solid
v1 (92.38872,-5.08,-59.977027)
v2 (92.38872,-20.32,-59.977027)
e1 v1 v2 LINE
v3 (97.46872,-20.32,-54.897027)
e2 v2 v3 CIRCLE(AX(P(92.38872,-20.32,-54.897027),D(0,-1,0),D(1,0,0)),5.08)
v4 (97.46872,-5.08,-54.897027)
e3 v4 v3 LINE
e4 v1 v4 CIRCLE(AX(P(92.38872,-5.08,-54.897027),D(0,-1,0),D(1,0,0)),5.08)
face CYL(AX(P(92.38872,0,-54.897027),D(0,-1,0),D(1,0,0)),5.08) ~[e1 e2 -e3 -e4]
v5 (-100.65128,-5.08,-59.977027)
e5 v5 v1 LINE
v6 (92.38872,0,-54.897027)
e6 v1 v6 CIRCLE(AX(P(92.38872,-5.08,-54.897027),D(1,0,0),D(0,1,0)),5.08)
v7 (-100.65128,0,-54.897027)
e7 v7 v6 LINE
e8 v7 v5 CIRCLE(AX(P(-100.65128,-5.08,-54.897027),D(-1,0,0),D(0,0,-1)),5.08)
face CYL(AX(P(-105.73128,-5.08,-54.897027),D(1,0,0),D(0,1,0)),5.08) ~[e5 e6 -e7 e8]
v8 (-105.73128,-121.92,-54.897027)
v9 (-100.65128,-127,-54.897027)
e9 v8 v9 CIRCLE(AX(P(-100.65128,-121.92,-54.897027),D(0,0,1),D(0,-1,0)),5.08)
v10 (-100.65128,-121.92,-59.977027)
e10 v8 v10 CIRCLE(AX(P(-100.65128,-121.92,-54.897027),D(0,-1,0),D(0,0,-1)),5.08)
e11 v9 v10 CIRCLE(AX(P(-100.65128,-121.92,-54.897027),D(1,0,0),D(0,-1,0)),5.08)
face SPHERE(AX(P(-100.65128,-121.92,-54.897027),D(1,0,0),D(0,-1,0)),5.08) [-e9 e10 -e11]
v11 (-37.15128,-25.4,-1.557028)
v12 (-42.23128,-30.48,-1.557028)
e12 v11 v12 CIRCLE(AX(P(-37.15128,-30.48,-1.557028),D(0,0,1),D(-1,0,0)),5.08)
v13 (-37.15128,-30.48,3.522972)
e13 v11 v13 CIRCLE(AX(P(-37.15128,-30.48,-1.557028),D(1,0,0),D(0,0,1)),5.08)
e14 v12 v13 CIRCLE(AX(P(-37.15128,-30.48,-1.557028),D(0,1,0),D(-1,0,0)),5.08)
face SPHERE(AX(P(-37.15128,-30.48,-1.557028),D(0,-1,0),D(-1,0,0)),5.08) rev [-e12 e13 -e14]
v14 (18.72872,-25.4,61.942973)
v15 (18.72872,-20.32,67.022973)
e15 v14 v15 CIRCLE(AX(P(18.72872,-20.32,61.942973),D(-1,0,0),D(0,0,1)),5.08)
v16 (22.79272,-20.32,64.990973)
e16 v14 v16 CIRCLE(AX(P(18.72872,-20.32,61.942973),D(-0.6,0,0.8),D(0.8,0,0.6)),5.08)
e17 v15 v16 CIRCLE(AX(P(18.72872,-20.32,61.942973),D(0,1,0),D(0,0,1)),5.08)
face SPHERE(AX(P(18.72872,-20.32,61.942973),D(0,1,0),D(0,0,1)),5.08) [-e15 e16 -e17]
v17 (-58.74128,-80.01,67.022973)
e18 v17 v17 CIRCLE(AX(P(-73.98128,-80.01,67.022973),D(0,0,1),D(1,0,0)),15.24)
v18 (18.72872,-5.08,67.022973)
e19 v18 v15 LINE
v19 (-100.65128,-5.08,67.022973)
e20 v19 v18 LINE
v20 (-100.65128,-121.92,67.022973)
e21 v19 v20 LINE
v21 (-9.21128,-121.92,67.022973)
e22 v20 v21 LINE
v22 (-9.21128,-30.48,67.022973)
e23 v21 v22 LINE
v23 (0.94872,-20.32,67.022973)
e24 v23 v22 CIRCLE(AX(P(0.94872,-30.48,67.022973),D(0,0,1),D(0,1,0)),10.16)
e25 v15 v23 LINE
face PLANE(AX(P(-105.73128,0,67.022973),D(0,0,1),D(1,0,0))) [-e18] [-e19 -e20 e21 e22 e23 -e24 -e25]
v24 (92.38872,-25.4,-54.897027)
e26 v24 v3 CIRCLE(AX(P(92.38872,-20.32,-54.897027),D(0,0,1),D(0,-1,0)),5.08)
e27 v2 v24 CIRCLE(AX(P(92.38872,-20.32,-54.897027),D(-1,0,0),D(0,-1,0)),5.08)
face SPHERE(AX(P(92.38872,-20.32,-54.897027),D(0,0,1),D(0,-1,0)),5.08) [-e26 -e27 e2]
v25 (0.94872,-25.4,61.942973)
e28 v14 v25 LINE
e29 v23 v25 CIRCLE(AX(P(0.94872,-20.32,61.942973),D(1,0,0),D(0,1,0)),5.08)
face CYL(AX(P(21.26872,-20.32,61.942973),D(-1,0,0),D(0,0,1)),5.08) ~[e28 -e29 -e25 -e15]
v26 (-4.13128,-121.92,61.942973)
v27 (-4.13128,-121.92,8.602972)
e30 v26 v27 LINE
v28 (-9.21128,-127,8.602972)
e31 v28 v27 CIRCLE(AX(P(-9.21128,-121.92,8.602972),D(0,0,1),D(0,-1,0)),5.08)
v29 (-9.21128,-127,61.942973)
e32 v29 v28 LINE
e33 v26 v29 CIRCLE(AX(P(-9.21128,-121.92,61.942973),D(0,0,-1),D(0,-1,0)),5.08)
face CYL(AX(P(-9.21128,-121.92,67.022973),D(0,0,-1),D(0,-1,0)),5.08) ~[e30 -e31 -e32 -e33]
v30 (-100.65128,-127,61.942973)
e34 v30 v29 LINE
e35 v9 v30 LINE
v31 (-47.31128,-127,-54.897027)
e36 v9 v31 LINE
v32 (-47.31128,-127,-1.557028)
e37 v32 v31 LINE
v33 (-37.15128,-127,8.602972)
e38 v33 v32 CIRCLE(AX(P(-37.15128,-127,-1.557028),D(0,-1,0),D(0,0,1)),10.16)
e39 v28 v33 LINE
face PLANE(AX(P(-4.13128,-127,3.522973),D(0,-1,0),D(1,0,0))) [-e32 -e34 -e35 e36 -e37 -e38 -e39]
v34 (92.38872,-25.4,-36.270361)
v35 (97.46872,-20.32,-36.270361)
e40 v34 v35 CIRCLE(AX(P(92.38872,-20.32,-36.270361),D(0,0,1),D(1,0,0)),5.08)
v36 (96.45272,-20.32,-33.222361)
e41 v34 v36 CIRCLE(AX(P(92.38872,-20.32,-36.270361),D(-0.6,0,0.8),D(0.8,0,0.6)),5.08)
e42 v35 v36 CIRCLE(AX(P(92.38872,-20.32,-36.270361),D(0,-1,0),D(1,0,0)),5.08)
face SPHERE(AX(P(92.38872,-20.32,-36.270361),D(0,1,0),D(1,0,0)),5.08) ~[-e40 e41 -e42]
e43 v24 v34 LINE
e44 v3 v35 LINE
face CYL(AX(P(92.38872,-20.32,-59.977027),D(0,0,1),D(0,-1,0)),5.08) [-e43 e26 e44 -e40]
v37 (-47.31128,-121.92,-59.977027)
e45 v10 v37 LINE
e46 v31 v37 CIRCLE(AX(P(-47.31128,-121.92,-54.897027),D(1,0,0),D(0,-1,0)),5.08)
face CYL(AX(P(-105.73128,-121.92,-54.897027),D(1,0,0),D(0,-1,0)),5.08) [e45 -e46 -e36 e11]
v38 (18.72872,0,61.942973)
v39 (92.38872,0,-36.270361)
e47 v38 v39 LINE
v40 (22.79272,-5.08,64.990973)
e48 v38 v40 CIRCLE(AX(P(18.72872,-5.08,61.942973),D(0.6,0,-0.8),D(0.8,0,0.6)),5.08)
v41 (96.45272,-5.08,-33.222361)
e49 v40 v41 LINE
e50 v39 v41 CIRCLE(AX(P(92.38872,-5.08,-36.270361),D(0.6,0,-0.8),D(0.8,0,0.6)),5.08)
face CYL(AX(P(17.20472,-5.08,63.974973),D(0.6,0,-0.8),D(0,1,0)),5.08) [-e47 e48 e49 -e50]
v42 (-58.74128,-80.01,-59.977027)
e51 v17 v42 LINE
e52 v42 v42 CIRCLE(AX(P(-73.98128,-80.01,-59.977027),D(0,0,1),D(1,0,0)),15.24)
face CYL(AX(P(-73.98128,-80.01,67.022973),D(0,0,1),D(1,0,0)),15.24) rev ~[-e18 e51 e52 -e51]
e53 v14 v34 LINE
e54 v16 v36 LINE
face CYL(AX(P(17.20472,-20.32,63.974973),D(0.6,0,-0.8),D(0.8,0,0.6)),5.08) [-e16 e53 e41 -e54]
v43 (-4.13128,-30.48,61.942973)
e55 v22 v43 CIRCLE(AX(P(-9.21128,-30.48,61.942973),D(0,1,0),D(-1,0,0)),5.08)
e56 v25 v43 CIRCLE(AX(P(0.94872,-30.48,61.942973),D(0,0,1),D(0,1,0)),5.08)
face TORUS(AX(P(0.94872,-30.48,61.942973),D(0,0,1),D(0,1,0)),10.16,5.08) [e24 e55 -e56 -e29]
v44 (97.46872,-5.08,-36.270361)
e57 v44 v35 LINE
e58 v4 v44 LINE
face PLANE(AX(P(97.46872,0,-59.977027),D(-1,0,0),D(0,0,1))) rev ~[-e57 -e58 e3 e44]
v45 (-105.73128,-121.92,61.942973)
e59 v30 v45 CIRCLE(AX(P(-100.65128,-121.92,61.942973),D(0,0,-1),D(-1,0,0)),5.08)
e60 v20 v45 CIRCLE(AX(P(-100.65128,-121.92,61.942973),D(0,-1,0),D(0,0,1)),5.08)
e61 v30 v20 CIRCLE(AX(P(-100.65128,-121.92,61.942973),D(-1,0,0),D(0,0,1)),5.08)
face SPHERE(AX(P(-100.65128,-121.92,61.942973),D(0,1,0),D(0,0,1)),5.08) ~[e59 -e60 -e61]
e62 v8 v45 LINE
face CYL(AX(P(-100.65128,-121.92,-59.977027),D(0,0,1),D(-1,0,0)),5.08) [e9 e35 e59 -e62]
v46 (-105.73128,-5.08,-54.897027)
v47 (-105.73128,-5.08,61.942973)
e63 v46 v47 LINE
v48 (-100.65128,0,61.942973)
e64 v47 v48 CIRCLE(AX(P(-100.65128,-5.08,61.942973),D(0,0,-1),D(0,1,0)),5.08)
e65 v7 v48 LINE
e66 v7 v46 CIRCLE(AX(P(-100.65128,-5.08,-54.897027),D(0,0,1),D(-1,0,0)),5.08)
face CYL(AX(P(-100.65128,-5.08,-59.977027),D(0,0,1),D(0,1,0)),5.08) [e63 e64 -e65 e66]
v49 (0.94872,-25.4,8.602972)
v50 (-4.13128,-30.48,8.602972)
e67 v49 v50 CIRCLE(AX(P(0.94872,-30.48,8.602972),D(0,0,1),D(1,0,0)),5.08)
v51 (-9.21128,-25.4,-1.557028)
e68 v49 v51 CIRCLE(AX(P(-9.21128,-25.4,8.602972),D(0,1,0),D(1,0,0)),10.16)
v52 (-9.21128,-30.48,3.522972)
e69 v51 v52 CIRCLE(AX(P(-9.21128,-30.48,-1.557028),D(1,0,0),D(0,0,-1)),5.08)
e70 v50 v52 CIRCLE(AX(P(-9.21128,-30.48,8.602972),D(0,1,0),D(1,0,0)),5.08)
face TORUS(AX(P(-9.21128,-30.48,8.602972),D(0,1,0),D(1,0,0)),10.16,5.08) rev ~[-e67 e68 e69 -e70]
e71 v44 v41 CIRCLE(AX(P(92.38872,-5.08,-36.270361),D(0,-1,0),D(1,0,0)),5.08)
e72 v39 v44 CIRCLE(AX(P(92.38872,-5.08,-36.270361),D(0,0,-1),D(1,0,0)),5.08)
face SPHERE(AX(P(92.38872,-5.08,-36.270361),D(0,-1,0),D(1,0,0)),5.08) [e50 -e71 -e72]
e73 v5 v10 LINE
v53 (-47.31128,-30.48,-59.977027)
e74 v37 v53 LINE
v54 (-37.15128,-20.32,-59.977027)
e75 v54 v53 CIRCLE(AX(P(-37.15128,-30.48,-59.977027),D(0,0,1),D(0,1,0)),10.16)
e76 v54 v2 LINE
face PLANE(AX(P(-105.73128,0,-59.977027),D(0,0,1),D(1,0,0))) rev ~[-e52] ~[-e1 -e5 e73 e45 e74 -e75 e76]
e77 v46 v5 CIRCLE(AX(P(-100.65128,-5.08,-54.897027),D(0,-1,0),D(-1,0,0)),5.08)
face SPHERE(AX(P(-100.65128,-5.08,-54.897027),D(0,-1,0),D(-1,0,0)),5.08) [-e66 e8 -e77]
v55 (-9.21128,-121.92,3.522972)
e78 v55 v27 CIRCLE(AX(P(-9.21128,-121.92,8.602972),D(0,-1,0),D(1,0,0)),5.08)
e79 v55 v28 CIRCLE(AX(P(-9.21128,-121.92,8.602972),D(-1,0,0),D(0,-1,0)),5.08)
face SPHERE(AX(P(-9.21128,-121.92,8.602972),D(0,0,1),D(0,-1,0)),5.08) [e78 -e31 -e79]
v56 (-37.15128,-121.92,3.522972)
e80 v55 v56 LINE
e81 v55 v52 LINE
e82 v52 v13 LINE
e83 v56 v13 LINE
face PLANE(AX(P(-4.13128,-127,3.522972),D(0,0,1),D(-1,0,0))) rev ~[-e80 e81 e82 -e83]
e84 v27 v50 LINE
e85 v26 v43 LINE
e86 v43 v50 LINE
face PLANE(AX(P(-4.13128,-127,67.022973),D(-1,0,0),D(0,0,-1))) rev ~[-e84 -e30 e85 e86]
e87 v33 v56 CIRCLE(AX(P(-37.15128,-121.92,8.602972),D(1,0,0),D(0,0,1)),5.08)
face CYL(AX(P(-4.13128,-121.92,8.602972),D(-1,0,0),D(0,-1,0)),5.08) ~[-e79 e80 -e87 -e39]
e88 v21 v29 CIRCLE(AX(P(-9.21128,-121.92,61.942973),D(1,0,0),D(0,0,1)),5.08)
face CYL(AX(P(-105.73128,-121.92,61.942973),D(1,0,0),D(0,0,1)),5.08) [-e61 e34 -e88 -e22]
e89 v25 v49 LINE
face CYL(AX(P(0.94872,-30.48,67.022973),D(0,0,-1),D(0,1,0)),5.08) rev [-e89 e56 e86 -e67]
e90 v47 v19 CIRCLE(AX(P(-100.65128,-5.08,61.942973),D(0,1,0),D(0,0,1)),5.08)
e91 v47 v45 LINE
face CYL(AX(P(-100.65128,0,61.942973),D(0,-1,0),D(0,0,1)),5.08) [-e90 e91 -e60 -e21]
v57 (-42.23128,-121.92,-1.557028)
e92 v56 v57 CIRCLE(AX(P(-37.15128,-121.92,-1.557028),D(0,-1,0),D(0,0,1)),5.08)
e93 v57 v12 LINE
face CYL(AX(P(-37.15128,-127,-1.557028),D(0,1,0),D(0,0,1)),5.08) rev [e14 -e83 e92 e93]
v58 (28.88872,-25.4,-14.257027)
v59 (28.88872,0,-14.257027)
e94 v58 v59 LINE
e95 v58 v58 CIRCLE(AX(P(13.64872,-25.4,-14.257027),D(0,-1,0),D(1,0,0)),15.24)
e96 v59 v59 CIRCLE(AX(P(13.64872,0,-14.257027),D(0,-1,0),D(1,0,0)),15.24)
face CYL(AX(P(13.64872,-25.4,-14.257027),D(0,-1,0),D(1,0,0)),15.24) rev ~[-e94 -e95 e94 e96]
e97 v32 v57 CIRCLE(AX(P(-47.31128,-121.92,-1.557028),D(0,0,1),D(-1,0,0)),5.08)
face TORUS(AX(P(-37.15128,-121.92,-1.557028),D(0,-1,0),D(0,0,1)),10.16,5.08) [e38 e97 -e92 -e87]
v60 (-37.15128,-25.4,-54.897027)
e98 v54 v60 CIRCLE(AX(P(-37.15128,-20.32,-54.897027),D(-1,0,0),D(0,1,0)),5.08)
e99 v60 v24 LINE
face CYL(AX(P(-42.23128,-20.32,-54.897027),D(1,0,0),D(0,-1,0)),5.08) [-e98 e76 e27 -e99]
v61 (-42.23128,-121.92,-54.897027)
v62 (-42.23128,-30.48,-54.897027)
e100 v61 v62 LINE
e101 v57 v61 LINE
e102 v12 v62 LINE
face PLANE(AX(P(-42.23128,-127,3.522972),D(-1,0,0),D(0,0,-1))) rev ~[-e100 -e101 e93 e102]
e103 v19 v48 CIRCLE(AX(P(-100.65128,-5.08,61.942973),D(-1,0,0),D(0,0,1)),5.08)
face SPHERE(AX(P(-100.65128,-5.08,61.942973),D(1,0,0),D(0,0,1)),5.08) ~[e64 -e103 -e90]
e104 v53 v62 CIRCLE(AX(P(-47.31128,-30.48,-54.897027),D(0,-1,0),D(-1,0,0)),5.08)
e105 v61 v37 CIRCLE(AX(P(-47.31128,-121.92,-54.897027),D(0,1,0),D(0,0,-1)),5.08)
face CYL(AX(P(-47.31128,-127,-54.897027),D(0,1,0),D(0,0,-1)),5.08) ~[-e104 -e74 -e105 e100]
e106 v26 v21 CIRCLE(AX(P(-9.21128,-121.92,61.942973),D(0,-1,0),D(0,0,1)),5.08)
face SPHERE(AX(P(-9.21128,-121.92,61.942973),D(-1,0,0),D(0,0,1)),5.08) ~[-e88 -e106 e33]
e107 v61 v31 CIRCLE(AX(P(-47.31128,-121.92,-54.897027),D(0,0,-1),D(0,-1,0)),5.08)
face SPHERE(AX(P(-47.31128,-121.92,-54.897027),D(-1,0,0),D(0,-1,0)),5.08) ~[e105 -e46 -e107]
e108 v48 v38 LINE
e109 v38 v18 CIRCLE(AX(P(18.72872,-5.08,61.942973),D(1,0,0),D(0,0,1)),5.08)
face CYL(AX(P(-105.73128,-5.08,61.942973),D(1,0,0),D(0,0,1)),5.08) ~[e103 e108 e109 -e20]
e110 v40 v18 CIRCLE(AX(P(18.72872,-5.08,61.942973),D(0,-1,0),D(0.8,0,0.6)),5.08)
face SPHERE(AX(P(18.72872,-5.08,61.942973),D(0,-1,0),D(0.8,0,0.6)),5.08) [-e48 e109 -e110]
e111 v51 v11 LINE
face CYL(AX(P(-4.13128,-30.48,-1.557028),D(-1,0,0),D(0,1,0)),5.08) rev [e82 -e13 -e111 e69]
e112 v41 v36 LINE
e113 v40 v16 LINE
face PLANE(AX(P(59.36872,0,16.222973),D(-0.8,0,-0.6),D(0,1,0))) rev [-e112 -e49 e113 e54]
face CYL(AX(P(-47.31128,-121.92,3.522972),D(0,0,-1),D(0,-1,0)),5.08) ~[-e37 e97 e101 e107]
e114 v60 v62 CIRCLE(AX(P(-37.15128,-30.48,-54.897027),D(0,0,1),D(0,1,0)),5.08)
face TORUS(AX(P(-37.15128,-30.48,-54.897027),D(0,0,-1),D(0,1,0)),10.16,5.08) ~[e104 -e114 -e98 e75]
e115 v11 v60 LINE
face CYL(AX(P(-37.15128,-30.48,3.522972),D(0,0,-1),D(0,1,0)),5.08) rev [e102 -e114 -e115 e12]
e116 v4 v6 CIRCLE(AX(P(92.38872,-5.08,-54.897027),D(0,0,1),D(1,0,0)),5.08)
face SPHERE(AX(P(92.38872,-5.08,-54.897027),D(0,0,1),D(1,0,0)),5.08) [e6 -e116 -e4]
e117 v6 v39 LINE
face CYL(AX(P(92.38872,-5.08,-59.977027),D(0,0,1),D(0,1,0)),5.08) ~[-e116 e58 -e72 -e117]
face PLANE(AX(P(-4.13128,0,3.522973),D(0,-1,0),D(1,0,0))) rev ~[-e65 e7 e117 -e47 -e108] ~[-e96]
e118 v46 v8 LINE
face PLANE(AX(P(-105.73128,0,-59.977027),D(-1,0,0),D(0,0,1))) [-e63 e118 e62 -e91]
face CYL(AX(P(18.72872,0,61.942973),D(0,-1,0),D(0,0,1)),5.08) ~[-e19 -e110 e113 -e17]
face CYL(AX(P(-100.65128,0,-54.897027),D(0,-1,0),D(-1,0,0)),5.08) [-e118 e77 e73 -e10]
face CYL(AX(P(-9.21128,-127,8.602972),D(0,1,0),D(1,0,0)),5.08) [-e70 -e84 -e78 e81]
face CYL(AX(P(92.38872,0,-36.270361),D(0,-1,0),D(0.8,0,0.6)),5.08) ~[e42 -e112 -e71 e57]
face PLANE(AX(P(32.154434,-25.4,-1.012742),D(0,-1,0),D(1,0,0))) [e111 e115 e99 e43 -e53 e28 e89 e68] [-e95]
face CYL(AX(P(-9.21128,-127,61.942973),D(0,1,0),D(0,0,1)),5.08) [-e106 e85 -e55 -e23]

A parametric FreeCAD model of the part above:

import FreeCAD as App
import Part
import Sketcher
from FreeCAD import Vector
Q = App.Units.Quantity


def edges_at(feature, points):
    """Names of the edges that pass closest to the given points."""
    edges = feature.Shape.Edges
    near = lambda p: min(range(len(edges)), key=lambda i: edges[i].distToShape(Part.Vertex(*p))[0])
    return sorted({f"Edge{near(p) + 1}" for p in points})


def add_polygon(sketch, points):
    """Adds a closed chain of lines whose ends are joined by coincident constraints."""
    first, n = sketch.GeometryCount, len(points)
    for a, b in zip(points, points[1:] + points[:1]):
        sketch.addGeometry(Part.LineSegment(App.Vector(*a, 0), App.Vector(*b, 0)), False)
    for i in range(n):
        sketch.addConstraint(Sketcher.Constraint("Coincident", first + i, 2, first + (i + 1) % n, 1))

doc = App.newDocument("Part")
body = doc.addObject("PartDesign::Body", "Body")

sketch1 = doc.addObject("Sketcher::SketchObject", "Sketch")
body.addObject(sketch1)
sketch1.AttachmentSupport = (doc.XZ_Plane, [""])
sketch1.MapMode = "FlatFace"
add_polygon(sketch1, [(-106, 67), (-106, -60), (97, -60), (97, 67)])
sketch1.addConstraint([
    Sketcher.Constraint("Vertical", 0),
    Sketcher.Constraint("Horizontal", 1),
    Sketcher.Constraint("Vertical", 2),
    Sketcher.Constraint("Horizontal", 3),
    Sketcher.Constraint("DistanceX", 1, 1, 1, 2, Q("8 in")),
    Sketcher.Constraint("DistanceY", 0, 2, 0, 1, Q("5 in")),
    Sketcher.Constraint("DistanceX", 0, 2, -1, 1, 105.73128),
    Sketcher.Constraint("DistanceY", 0, 2, -1, 1, 59.977027),
])
pad1 = doc.addObject("PartDesign::Pad", "Pad")
body.addObject(pad1)
pad1.Profile = sketch1
pad1.Length = Q("5 in")

sketch2 = doc.addObject("Sketcher::SketchObject", "Sketch001")
body.addObject(sketch2)
sketch2.AttachmentSupport = (doc.XZ_Plane, [""])
sketch2.MapMode = "FlatFace"
sketch2.AttachmentOffset = App.Placement(Vector(0, 0, 5 * 25.4), App.Rotation())
add_polygon(sketch2, [(97, 67), (-4, 67), (-4, 4), (-42, 4), (-42, -60), (97, -60)])
sketch2.addConstraint([
    Sketcher.Constraint("Horizontal", 0),
    Sketcher.Constraint("Vertical", 1),
    Sketcher.Constraint("Horizontal", 2),
    Sketcher.Constraint("Vertical", 3),
    Sketcher.Constraint("Horizontal", 4),
    Sketcher.Constraint("Vertical", 5),
    Sketcher.Constraint("Equal", 1, 3),
    Sketcher.Constraint("DistanceX", 0, 2, 0, 1, Q("4 in")),
    Sketcher.Constraint("DistanceY", 5, 1, 5, 2, Q("5 in")),
    Sketcher.Constraint("DistanceX", 2, 2, 2, 1, Q("1.5 in")),
    Sketcher.Constraint("DistanceX", 0, 2, -1, 1, 4.13128),
    Sketcher.Constraint("DistanceY", -1, 1, 1, 2, 3.522972),
])
pocket1 = doc.addObject("PartDesign::Pocket", "Pocket")
body.addObject(pocket1)
pocket1.Profile = sketch2
pocket1.Length = Q("4 in")
doc.recompute()

chamfer = doc.addObject("PartDesign::Chamfer", "Chamfer")
body.addObject(chamfer)
chamfer.Base = (pocket1, edges_at(pocket1, [(97.469, -12.7, 67.023)]))
chamfer.ChamferType = "Two distances"
chamfer.Size = Q("3 in")
chamfer.Size2 = Q("4 in")
doc.recompute()

fillet = doc.addObject("PartDesign::Fillet", "Fillet")
body.addObject(fillet)
fillet.Base = (chamfer, ["Edge1"])
fillet.UseAllEdges = True
fillet.Radius = Q("0.2 in")

sketch3 = doc.addObject("Sketcher::SketchObject", "Sketch002")
body.addObject(sketch3)
sketch3.AttachmentSupport = (doc.XZ_Plane, [""])
sketch3.MapMode = "FlatFace"
sketch3.AttachmentOffset = App.Placement(Vector(0, 0, 1 * 25.4), App.Rotation())
sketch3.addGeometry(Part.Circle(Vector(14, -14, 0), Vector(0, 0, 1), 15), False)
sketch3.addConstraint([
    Sketcher.Constraint("Diameter", 0, Q("1.2 in")),
    Sketcher.Constraint("DistanceX", -1, 1, 0, 3, 13.64872),
    Sketcher.Constraint("DistanceY", 0, 3, -1, 1, 14.257027),
])
pocket2 = doc.addObject("PartDesign::Pocket", "Pocket001")
body.addObject(pocket2)
pocket2.Profile = sketch3
pocket2.Length = Q("1 in")

sketch4 = doc.addObject("Sketcher::SketchObject", "Sketch003")
body.addObject(sketch4)
sketch4.AttachmentSupport = (doc.XY_Plane, [""])
sketch4.MapMode = "FlatFace"
sketch4.AttachmentOffset = App.Placement(Vector(0, 0, 67.022973), App.Rotation())
sketch4.addGeometry(Part.Circle(Vector(-74, -80, 0), Vector(0, 0, 1), 15), False)
sketch4.addConstraint([
    Sketcher.Constraint("Diameter", 0, Q("1.2 in")),
    Sketcher.Constraint("DistanceY", 0, 3, -1, 1, Q("3.15 in")),
    Sketcher.Constraint("DistanceX", 0, 3, -1, 1, 73.98128),
])
pocket3 = doc.addObject("PartDesign::Pocket", "Pocket002")
body.addObject(pocket3)
pocket3.Profile = sketch4
pocket3.Length = Q("5 in")

doc.recompute()
